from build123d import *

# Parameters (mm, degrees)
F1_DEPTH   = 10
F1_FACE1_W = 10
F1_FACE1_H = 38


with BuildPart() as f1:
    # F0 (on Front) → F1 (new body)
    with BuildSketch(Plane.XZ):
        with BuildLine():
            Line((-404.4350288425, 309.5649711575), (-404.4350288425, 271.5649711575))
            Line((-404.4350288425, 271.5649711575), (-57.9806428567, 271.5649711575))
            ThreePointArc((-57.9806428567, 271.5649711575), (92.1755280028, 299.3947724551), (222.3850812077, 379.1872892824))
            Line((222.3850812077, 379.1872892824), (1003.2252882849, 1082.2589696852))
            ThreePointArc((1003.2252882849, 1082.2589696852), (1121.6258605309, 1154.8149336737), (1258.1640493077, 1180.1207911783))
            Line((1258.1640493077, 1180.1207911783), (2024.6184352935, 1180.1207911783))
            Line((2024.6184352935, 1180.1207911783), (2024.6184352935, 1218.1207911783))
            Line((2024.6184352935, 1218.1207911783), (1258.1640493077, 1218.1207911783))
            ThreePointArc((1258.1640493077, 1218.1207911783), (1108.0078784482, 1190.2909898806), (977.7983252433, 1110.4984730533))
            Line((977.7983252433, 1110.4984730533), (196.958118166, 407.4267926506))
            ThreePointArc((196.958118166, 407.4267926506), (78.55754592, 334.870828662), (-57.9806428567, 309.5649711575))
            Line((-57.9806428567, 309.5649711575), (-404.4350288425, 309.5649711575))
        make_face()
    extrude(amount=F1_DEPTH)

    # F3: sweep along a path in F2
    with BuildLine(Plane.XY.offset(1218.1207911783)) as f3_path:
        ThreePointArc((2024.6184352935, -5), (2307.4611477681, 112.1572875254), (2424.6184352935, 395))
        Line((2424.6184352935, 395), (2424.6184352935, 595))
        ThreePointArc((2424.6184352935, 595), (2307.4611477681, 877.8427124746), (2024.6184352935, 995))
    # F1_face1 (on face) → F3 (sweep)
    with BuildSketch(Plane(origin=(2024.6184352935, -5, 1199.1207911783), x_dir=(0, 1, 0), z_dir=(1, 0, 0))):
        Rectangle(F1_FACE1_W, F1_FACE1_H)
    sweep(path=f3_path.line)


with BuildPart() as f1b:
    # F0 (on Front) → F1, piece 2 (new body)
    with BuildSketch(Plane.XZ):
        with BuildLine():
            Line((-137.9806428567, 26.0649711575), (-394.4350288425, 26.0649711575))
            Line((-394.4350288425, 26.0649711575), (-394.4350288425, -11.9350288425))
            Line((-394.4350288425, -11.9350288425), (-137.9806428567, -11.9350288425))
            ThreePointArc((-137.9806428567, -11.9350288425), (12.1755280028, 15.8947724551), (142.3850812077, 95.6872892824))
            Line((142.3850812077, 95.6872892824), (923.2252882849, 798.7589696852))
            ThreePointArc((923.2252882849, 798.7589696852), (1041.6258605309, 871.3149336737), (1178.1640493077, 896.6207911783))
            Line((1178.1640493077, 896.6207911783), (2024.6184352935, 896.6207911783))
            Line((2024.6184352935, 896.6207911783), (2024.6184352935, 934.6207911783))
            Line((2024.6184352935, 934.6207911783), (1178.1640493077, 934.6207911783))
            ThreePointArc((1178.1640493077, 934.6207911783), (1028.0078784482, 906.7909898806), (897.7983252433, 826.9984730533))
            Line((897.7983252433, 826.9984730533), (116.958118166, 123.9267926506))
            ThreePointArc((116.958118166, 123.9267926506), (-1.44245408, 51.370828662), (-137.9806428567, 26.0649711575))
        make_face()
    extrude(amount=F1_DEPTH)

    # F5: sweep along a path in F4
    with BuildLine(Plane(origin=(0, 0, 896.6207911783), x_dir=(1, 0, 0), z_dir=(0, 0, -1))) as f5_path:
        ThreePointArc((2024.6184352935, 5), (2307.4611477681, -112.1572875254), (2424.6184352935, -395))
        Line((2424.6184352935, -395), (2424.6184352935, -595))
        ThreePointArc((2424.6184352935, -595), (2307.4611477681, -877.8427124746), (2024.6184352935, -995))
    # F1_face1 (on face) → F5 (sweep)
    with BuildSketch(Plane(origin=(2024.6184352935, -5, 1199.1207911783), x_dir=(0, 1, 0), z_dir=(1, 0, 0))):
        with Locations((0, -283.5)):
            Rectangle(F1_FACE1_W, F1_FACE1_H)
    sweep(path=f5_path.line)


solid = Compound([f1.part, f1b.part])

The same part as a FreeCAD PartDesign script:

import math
import FreeCAD as App
import Part
import Sketcher
from FreeCAD import Vector
Q = App.Units.Quantity

doc = App.newDocument("Part")
body = doc.addObject("PartDesign::Body", "Body")

# Sketch on XZ plane
sketch1 = body.newObject("Sketcher::SketchObject", "Sketch")
sketch1.AttachmentSupport = (doc.getObject("XZ_Plane"), [""])
sketch1.MapMode = "FlatFace"
sketch1.addGeometry([
    Part.LineSegment(Vector(-404.435029, 309.564971, 0), Vector(-404.435029, 271.564971, 0)),  # 0
    Part.LineSegment(Vector(-404.435029, 271.564971, 0), Vector(-57.980643, 271.564971, 0)),  # 1
    Part.ArcOfCircle(Part.Circle(Vector(-57.980643, 690.564971, 0), Vector(0, 0, 1), 419), math.radians(-90), math.radians(-48)),  # 2
    Part.LineSegment(Vector(222.385081, 379.187289, 0), Vector(1003.225288, 1082.25897, 0)),  # 3
    Part.ArcOfCircle(Part.Circle(Vector(1258.164049, 799.120791, 0), Vector(0, 0, 1), 381), math.radians(90), math.radians(132)),  # 4
    Part.LineSegment(Vector(1258.164049, 1180.120791, 0), Vector(2024.618435, 1180.120791, 0)),  # 5
    Part.LineSegment(Vector(2024.618435, 1180.120791, 0), Vector(2024.618435, 1218.120791, 0)),  # 6
    Part.LineSegment(Vector(2024.618435, 1218.120791, 0), Vector(1258.164049, 1218.120791, 0)),  # 7
    Part.ArcOfCircle(Part.Circle(Vector(1258.164049, 799.120791, 0), Vector(0, 0, 1), 419), math.radians(90), math.radians(132)),  # 8
    Part.LineSegment(Vector(977.798325, 1110.498473, 0), Vector(196.958118, 407.426793, 0)),  # 9
    Part.ArcOfCircle(Part.Circle(Vector(-57.980643, 690.564971, 0), Vector(0, 0, 1), 381), math.radians(-90), math.radians(-48)),  # 10
    Part.LineSegment(Vector(-57.980643, 309.564971, 0), Vector(-404.435029, 309.564971, 0)),  # 11
], False)
sketch1.addConstraint([
    Sketcher.Constraint("Coincident", 0, 2, 1, 1),
    Sketcher.Constraint("Tangent", 1, 2, 2, 1),
    Sketcher.Constraint("Tangent", 2, 2, 3, 1),
    Sketcher.Constraint("Tangent", 3, 2, 4, 2),
    Sketcher.Constraint("Tangent", 4, 1, 5, 1),
    Sketcher.Constraint("Coincident", 5, 2, 6, 1),
    Sketcher.Constraint("Coincident", 6, 2, 7, 1),
    Sketcher.Constraint("Tangent", 7, 2, 8, 1),
    Sketcher.Constraint("Tangent", 8, 2, 9, 1),
    Sketcher.Constraint("Tangent", 9, 2, 10, 2),
    Sketcher.Constraint("Tangent", 10, 1, 11, 1),
    Sketcher.Constraint("Coincident", 11, 2, 0, 1),
    Sketcher.Constraint("Vertical", 0),
    Sketcher.Constraint("Horizontal", 1),
    Sketcher.Constraint("Horizontal", 5),
    Sketcher.Constraint("Vertical", 6),
    Sketcher.Constraint("Horizontal", 7),
    Sketcher.Constraint("Horizontal", 11),
    Sketcher.Constraint("Coincident", 8, 3, 4, 3),
    Sketcher.Constraint("Coincident", 10, 3, 2, 3),
    Sketcher.Constraint("Equal", 2, 8),
    Sketcher.Constraint("Equal", 4, 10),
    Sketcher.Constraint("Radius", 2, Q("419 mm")),
    Sketcher.Constraint("Radius", 4, Q("381 mm")),
    Sketcher.Constraint("Angle", 3, Q("42 deg")),
    Sketcher.Constraint("DistanceY", 2, 3, 3, 2, Q("391.693999 mm")),
    Sketcher.Constraint("DistanceX", 1, 1, 1, 2, Q("346.454386 mm")),
    Sketcher.Constraint("DistanceX", 5, 1, 5, 2, Q("766.454386 mm")),
    Sketcher.Constraint("DistanceY", -1, 1, 2, 3, Q("690.564971 mm")),
    Sketcher.Constraint("DistanceX", -1, 1, 4, 3, Q("1258.164049 mm")),
])
pad1 = body.newObject("PartDesign::Pad", "Pad")
pad1.Profile = sketch1
pad1.Length = 10

# Sketch on YZ plane
sketch2 = body.newObject("Sketcher::SketchObject", "Sketch001")
sketch2.AttachmentSupport = (doc.getObject("YZ_Plane"), [""])
sketch2.MapMode = "FlatFace"
sketch2.AttachmentOffset = App.Placement(Vector(0, 0, 2024.618435), App.Rotation())
sketch2.addGeometry([
    Part.LineSegment(Vector(-10, 1218.120791, 0), Vector(-10, 1180.120791, 0)),
    Part.LineSegment(Vector(-10, 1180.120791, 0), Vector(0, 1180.120791, 0)),
    Part.LineSegment(Vector(0, 1180.120791, 0), Vector(0, 1218.120791, 0)),
    Part.LineSegment(Vector(0, 1218.120791, 0), Vector(-10, 1218.120791, 0)),
], False)
sketch2.addConstraint([
    Sketcher.Constraint("Coincident", 0, 2, 1, 1),
    Sketcher.Constraint("Coincident", 1, 2, 2, 1),
    Sketcher.Constraint("Coincident", 2, 2, 3, 1),
    Sketcher.Constraint("Coincident", 3, 2, 0, 1),
    Sketcher.Constraint("Vertical", 0),
    Sketcher.Constraint("Horizontal", 1),
    Sketcher.Constraint("Vertical", 2),
    Sketcher.Constraint("Horizontal", 3),
    Sketcher.Constraint("PointOnObject", 1, 2, -2),
    Sketcher.Constraint("DistanceX", 1, 1, 1, 2, Q("10 mm")),
    Sketcher.Constraint("DistanceY", 0, 2, 0, 1, Q("38 mm")),
    Sketcher.Constraint("DistanceY", -1, 1, 0, 2, Q("1180.120791 mm")),
])

# Sketch on XY plane
sketch3 = body.newObject("Sketcher::SketchObject", "Sketch002")
sketch3.AttachmentSupport = (doc.getObject("XY_Plane"), [""])
sketch3.MapMode = "FlatFace"
sketch3.AttachmentOffset = App.Placement(Vector(0, 0, 1218.120791), App.Rotation())
sketch3.addGeometry([
    Part.ArcOfCircle(Part.Circle(Vector(2024.618435, 395, 0), Vector(0, 0, 1), 400), math.radians(-90), math.radians(0)),
    Part.LineSegment(Vector(2424.618435, 395, 0), Vector(2424.618435, 595, 0)),
    Part.ArcOfCircle(Part.Circle(Vector(2024.618435, 595, 0), Vector(0, 0, 1), 400), math.radians(0), math.radians(90)),
], False)
sketch3.addConstraint([
    Sketcher.Constraint("Tangent", 0, 2, 1, 1),
    Sketcher.Constraint("Tangent", 1, 2, 2, 1),
    Sketcher.Constraint("Vertical", 1),
    Sketcher.Constraint("Equal", 0, 2),
    Sketcher.Constraint("Vertical", 2, 3, 0, 1),
    Sketcher.Constraint("Vertical", 0, 1, 2, 2),
    Sketcher.Constraint("Radius", 0, Q("400 mm")),
    Sketcher.Constraint("DistanceY", 1, 1, 1, 2, Q("200 mm")),
    Sketcher.Constraint("DistanceY", -1, 1, 0, 3, Q("395 mm")),
    Sketcher.Constraint("DistanceX", -1, 1, 0, 3, Q("2024.618435 mm")),
])
doc.recompute()

additivepipe = body.newObject("PartDesign::AdditivePipe", "AdditivePipe")
additivepipe.Profile = sketch2
additivepipe.Spine = (sketch3, ["Edge1", "Edge2", "Edge3"])
body2 = doc.addObject("PartDesign::Body", "Body001")

# Sketch on XZ plane
sketch4 = body2.newObject("Sketcher::SketchObject", "Sketch003")
sketch4.AttachmentSupport = (doc.getObject("XZ_Plane001"), [""])
sketch4.MapMode = "FlatFace"
sketch4.addGeometry([
    Part.LineSegment(Vector(-137.980643, 26.064971, 0), Vector(-394.435029, 26.064971, 0)),  # 0
    Part.LineSegment(Vector(-394.435029, 26.064971, 0), Vector(-394.435029, -11.935029, 0)),  # 1
    Part.LineSegment(Vector(-394.435029, -11.935029, 0), Vector(-137.980643, -11.935029, 0)),  # 2
    Part.ArcOfCircle(Part.Circle(Vector(-137.980643, 407.064971, 0), Vector(0, 0, 1), 419), math.radians(-90), math.radians(-48)),  # 3
    Part.LineSegment(Vector(142.385081, 95.687289, 0), Vector(923.225288, 798.75897, 0)),  # 4
    Part.ArcOfCircle(Part.Circle(Vector(1178.164049, 515.620791, 0), Vector(0, 0, 1), 381), math.radians(90), math.radians(132)),  # 5
    Part.LineSegment(Vector(1178.164049, 896.620791, 0), Vector(2024.618435, 896.620791, 0)),  # 6
    Part.LineSegment(Vector(2024.618435, 896.620791, 0), Vector(2024.618435, 934.620791, 0)),  # 7
    Part.LineSegment(Vector(2024.618435, 934.620791, 0), Vector(1178.164049, 934.620791, 0)),  # 8
    Part.ArcOfCircle(Part.Circle(Vector(1178.164049, 515.620791, 0), Vector(0, 0, 1), 419), math.radians(90), math.radians(132)),  # 9
    Part.LineSegment(Vector(897.798325, 826.998473, 0), Vector(116.958118, 123.926793, 0)),  # 10
    Part.ArcOfCircle(Part.Circle(Vector(-137.980643, 407.064971, 0), Vector(0, 0, 1), 381), math.radians(-90), math.radians(-48)),  # 11
], False)
sketch4.addConstraint([
    Sketcher.Constraint("Coincident", 0, 2, 1, 1),
    Sketcher.Constraint("Coincident", 1, 2, 2, 1),
    Sketcher.Constraint("Tangent", 2, 2, 3, 1),
    Sketcher.Constraint("Tangent", 3, 2, 4, 1),
    Sketcher.Constraint("Tangent", 4, 2, 5, 2),
    Sketcher.Constraint("Tangent", 5, 1, 6, 1),
    Sketcher.Constraint("Coincident", 6, 2, 7, 1),
    Sketcher.Constraint("Coincident", 7, 2, 8, 1),
    Sketcher.Constraint("Tangent", 8, 2, 9, 1),
    Sketcher.Constraint("Tangent", 9, 2, 10, 1),
    Sketcher.Constraint("Tangent", 10, 2, 11, 2),
    Sketcher.Constraint("Tangent", 11, 1, 0, 1),
    Sketcher.Constraint("Horizontal", 0),
    Sketcher.Constraint("Vertical", 1),
    Sketcher.Constraint("Horizontal", 2),
    Sketcher.Constraint("Horizontal", 6),
    Sketcher.Constraint("Vertical", 7),
    Sketcher.Constraint("Horizontal", 8),
    Sketcher.Constraint("Coincident", 9, 3, 5, 3),
    Sketcher.Constraint("Coincident", 11, 3, 3, 3),
    Sketcher.Constraint("Equal", 3, 9),
    Sketcher.Constraint("Equal", 5, 11),
    Sketcher.Constraint("Radius", 3, Q("419 mm")),
    Sketcher.Constraint("Radius", 5, Q("381 mm")),
    Sketcher.Constraint("Angle", 4, Q("42 deg")),
    Sketcher.Constraint("DistanceY", 3, 3, 4, 2, Q("391.693999 mm")),
    Sketcher.Constraint("DistanceX", 0, 2, 0, 1, Q("256.454386 mm")),
    Sketcher.Constraint("DistanceX", 6, 1, 6, 2, Q("846.454386 mm")),
    Sketcher.Constraint("DistanceY", -1, 1, 3, 3, Q("407.064971 mm")),
    Sketcher.Constraint("DistanceX", -1, 1, 5, 3, Q("1178.164049 mm")),
])
pad2 = body2.newObject("PartDesign::Pad", "Pad001")
pad2.Profile = sketch4
pad2.Length = 10

# Sketch on YZ plane
sketch5 = body2.newObject("Sketcher::SketchObject", "Sketch004")
sketch5.AttachmentSupport = (doc.getObject("YZ_Plane001"), [""])
sketch5.MapMode = "FlatFace"
sketch5.AttachmentOffset = App.Placement(Vector(0, 0, 2024.618435), App.Rotation())
sketch5.addGeometry([
    Part.LineSegment(Vector(-10, 934.620791, 0), Vector(-10, 896.620791, 0)),
    Part.LineSegment(Vector(-10, 896.620791, 0), Vector(0, 896.620791, 0)),
    Part.LineSegment(Vector(0, 896.620791, 0), Vector(0, 934.620791, 0)),
    Part.LineSegment(Vector(0, 934.620791, 0), Vector(-10, 934.620791, 0)),
], False)
sketch5.addConstraint([
    Sketcher.Constraint("Coincident", 0, 2, 1, 1),
    Sketcher.Constraint("Coincident", 1, 2, 2, 1),
    Sketcher.Constraint("Coincident", 2, 2, 3, 1),
    Sketcher.Constraint("Coincident", 3, 2, 0, 1),
    Sketcher.Constraint("Vertical", 0),
    Sketcher.Constraint("Horizontal", 1),
    Sketcher.Constraint("Vertical", 2),
    Sketcher.Constraint("Horizontal", 3),
    Sketcher.Constraint("PointOnObject", 1, 2, -2),
    Sketcher.Constraint("DistanceX", 1, 1, 1, 2, Q("10 mm")),
    Sketcher.Constraint("DistanceY", 0, 2, 0, 1, Q("38 mm")),
    Sketcher.Constraint("DistanceY", -1, 1, 0, 2, Q("896.620791 mm")),
])

# Sketch on XY plane
sketch6 = body2.newObject("Sketcher::SketchObject", "Sketch005")
sketch6.AttachmentSupport = (doc.getObject("XY_Plane001"), [""])
sketch6.MapMode = "FlatFace"
sketch6.AttachmentOffset = App.Placement(Vector(0, 0, 896.620791), App.Rotation())
sketch6.addGeometry([
    Part.ArcOfCircle(Part.Circle(Vector(2024.618435, 395, 0), Vector(0, 0, 1), 400), math.radians(-90), math.radians(0)),
    Part.LineSegment(Vector(2424.618435, 395, 0), Vector(2424.618435, 595, 0)),
    Part.ArcOfCircle(Part.Circle(Vector(2024.618435, 595, 0), Vector(0, 0, 1), 400), math.radians(0), math.radians(90)),
], False)
sketch6.addConstraint([
    Sketcher.Constraint("Tangent", 0, 2, 1, 1),
    Sketcher.Constraint("Tangent", 1, 2, 2, 1),
    Sketcher.Constraint("Vertical", 1),
    Sketcher.Constraint("Equal", 0, 2),
    Sketcher.Constraint("Vertical", 2, 3, 0, 1),
    Sketcher.Constraint("Vertical", 0, 1, 2, 2),
    Sketcher.Constraint("Radius", 0, Q("400 mm")),
    Sketcher.Constraint("DistanceY", 1, 1, 1, 2, Q("200 mm")),
    Sketcher.Constraint("DistanceY", -1, 1, 0, 3, Q("395 mm")),
    Sketcher.Constraint("DistanceX", -1, 1, 0, 3, Q("2024.618435 mm")),
])
doc.recompute()

additivepipe2 = body2.newObject("PartDesign::AdditivePipe", "AdditivePipe001")
additivepipe2.Profile = sketch5
additivepipe2.Spine = (sketch6, ["Edge1", "Edge2", "Edge3"])

doc.recompute()
